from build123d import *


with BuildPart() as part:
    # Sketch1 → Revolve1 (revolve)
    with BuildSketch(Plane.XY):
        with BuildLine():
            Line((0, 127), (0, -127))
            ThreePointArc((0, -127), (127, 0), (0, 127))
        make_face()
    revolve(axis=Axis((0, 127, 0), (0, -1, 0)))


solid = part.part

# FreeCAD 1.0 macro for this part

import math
import FreeCAD as App
import Part
import Sketcher
Q = App.Units.Quantity

doc = App.newDocument("Part")
body = doc.addObject("PartDesign::Body", "Body")

# Sketch on XY plane
sketch1 = body.newObject("Sketcher::SketchObject", "Sketch")
sketch1.AttachmentSupport = (doc.getObject("XY_Plane"), [""])
sketch1.MapMode = "FlatFace"
sketch1.addGeometry([
    Part.LineSegment(App.Vector(0, 127, 0), App.Vector(0, -127, 0)),
    Part.ArcOfCircle(Part.Circle(App.Vector(0, 0, 0), App.Vector(0, 0, 1), 127), math.radians(-90), math.radians(90)),
], False)
sketch1.addConstraint([
    Sketcher.Constraint("Coincident", 0, 1, 1, 2),
    Sketcher.Constraint("Coincident", 1, 1, 0, 2),
    Sketcher.Constraint("Vertical", 0),
    Sketcher.Constraint("Coincident", 1, 3, -1, 1),
    Sketcher.Constraint("PointOnObject", 0, 1, -2),
    Sketcher.Constraint("Radius", 1, Q("5 in")),
])
revolution = body.newObject("PartDesign::Revolution", "Revolution")
revolution.Profile = sketch1
revolution.ReferenceAxis = (sketch1, ["V_Axis"])
revolution.Angle = 360

doc.recompute()
